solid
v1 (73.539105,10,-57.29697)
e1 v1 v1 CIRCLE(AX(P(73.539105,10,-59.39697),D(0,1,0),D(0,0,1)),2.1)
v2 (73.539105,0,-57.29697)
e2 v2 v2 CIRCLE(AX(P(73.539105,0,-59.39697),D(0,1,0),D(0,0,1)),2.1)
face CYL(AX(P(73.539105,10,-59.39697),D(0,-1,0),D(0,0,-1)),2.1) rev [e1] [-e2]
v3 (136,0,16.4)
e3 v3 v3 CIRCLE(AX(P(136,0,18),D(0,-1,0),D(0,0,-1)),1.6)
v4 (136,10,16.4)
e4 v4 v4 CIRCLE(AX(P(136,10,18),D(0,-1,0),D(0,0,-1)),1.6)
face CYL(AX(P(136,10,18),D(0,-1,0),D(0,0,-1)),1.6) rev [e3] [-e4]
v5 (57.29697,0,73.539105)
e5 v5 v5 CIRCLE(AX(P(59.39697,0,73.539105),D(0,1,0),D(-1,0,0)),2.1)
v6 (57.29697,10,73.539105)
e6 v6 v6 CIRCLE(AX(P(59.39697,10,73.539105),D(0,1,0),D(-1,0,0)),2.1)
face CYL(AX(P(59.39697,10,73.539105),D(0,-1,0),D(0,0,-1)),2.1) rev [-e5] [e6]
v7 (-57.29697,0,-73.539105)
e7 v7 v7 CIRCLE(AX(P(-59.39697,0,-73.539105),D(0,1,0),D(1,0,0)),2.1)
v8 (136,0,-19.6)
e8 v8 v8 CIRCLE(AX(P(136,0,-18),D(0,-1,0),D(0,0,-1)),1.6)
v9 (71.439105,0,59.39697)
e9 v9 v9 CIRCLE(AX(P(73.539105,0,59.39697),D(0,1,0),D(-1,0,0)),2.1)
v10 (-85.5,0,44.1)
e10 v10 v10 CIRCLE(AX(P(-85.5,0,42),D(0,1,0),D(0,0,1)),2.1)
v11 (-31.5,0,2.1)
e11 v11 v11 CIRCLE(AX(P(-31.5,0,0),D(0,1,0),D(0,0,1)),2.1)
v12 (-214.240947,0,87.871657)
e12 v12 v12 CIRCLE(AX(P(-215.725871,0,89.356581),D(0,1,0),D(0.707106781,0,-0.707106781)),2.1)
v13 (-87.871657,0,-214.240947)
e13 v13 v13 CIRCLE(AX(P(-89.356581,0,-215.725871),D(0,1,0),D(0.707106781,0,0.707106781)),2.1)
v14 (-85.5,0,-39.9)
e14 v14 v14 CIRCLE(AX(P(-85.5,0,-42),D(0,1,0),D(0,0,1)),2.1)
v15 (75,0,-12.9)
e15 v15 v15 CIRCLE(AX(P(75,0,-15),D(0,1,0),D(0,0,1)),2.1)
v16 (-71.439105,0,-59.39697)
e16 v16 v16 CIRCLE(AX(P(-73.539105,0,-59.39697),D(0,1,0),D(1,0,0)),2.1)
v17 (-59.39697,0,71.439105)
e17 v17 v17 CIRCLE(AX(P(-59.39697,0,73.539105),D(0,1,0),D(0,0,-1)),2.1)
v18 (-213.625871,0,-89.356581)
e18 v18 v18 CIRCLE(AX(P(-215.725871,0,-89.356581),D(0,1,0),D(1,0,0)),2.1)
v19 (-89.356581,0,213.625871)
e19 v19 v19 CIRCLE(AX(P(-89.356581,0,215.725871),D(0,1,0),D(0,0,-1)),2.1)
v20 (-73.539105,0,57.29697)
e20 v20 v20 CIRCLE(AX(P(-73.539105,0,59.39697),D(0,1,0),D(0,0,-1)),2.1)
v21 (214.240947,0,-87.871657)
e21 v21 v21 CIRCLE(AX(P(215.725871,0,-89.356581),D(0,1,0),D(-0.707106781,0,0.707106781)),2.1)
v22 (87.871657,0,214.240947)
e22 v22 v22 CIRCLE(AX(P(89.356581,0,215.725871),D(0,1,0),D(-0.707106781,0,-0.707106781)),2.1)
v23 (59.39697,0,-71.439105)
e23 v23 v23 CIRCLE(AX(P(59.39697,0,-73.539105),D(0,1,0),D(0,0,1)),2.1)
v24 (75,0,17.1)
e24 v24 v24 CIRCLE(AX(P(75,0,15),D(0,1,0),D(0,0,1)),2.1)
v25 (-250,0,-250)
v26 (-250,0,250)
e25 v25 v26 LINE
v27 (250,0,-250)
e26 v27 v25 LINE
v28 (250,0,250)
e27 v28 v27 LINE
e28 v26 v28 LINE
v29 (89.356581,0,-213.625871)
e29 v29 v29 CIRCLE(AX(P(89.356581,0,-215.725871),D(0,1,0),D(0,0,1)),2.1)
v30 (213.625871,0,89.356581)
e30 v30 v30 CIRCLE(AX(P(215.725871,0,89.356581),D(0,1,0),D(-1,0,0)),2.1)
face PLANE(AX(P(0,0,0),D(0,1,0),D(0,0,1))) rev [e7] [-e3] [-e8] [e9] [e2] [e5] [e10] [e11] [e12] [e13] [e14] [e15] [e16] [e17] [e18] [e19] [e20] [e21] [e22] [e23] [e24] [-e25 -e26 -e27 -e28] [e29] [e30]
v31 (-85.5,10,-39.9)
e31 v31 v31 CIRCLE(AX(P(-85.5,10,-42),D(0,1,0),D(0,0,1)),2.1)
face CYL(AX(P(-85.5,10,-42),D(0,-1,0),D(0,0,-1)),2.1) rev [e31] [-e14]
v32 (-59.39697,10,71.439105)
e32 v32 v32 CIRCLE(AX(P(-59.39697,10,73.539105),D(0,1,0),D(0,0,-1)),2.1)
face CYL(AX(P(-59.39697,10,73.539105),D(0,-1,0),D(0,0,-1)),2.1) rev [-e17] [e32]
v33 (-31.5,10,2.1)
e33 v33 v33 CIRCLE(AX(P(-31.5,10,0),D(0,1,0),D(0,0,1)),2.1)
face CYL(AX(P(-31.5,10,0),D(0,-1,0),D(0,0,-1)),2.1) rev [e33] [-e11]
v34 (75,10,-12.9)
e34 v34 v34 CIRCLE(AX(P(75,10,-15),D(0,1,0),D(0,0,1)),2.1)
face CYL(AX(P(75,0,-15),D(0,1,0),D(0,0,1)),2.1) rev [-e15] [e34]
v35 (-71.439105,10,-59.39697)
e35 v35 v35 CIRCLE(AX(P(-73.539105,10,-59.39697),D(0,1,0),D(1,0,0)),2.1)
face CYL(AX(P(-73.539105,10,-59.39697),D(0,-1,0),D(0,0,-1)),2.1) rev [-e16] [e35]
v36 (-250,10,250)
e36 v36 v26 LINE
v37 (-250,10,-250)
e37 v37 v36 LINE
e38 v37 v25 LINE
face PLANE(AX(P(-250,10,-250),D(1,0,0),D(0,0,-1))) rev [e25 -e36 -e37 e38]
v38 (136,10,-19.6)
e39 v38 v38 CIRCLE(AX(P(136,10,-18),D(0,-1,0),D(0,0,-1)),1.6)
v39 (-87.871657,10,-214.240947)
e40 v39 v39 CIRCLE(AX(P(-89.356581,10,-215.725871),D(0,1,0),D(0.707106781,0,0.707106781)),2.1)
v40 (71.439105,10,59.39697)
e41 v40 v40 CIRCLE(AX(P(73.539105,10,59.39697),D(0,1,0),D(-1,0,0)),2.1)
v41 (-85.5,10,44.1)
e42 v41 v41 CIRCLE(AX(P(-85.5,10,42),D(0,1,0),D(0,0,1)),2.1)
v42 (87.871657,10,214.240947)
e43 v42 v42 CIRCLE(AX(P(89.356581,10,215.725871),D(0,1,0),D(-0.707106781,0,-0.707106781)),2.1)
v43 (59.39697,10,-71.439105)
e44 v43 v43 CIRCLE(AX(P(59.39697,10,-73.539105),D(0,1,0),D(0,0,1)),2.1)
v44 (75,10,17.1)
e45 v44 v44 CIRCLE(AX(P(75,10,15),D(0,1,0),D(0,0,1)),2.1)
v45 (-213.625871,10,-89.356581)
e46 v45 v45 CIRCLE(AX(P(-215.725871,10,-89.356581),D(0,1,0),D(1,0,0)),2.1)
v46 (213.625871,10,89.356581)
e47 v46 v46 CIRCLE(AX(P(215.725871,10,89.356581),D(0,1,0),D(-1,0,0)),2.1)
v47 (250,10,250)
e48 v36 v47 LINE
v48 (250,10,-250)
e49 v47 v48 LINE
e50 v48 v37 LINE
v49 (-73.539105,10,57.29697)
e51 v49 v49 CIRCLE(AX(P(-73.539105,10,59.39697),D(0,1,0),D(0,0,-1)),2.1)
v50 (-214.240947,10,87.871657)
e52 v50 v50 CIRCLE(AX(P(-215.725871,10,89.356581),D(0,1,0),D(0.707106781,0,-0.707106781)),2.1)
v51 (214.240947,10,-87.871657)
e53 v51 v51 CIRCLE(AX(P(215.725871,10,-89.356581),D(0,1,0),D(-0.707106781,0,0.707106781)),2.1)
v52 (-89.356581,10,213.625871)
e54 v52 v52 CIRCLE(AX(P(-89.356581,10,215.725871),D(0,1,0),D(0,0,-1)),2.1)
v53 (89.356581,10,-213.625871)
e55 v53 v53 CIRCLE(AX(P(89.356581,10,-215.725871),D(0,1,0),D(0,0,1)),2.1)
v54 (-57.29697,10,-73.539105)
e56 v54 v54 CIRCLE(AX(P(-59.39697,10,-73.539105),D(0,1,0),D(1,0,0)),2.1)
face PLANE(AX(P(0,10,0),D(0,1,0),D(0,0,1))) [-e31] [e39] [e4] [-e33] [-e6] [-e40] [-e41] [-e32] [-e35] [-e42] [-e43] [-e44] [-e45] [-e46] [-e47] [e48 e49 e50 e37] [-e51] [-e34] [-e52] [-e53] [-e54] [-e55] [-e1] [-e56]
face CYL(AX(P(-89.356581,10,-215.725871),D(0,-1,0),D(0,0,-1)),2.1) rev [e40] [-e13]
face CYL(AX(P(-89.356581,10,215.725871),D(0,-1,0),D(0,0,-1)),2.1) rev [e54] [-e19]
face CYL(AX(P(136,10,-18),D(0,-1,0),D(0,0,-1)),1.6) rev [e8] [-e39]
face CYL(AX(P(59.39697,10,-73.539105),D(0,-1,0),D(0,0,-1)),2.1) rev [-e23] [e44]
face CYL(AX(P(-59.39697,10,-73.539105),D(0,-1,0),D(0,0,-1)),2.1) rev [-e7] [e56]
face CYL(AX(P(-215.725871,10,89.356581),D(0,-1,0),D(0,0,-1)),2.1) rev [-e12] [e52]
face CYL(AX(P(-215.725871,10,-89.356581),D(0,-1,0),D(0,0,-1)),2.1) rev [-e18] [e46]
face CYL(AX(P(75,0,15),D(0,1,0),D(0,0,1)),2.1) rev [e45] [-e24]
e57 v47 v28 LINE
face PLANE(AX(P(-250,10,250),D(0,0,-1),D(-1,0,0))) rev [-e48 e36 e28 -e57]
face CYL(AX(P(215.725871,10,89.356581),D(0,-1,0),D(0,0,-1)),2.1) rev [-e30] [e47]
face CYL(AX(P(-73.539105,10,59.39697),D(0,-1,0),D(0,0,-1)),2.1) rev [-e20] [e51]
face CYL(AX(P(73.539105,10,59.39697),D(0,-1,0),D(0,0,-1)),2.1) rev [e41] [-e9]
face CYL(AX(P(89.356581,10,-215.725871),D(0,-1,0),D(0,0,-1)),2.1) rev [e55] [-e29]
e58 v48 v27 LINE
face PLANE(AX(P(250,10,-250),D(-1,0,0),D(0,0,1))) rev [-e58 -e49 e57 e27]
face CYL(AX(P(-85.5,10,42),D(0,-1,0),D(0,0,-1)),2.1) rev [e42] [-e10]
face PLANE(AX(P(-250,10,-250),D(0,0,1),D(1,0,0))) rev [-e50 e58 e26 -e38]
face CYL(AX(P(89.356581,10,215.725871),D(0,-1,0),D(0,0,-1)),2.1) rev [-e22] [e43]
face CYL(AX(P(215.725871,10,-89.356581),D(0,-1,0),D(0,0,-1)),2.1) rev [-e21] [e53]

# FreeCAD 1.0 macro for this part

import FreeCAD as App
import Part
import Sketcher

V = App.Vector

doc = App.newDocument("Part")
body = doc.addObject("PartDesign::Body", "Body")

# Sketch on XZ plane
sketch1 = body.newObject("Sketcher::SketchObject", "Sketch")
sketch1.AttachmentSupport = (doc.getObject("XZ_Plane"), [""])
sketch1.MapMode = "FlatFace"
sketch1.addGeometry([
    Part.LineSegment(V(-250, -250, 0), V(-250, 250, 0)),
    Part.LineSegment(V(-250, 250, 0), V(250, 250, 0)),
    Part.LineSegment(V(250, 250, 0), V(250, -250, 0)),
    Part.LineSegment(V(250, -250, 0), V(-250, -250, 0)),
], False)
sketch1.addConstraint([
    Sketcher.Constraint("Coincident", 0, 2, 1, 1),
    Sketcher.Constraint("Coincident", 1, 2, 2, 1),
    Sketcher.Constraint("Coincident", 2, 2, 3, 1),
    Sketcher.Constraint("Coincident", 3, 2, 0, 1),
    Sketcher.Constraint("Vertical", 0),
    Sketcher.Constraint("Horizontal", 1),
    Sketcher.Constraint("Vertical", 2),
    Sketcher.Constraint("Horizontal", 3),
    Sketcher.Constraint("Symmetric", 0, 2, 2, 2, -1, 1),
    Sketcher.Constraint("Equal", 3, 0),
    Sketcher.Constraint("DistanceX", 1, 1, 1, 2, 500.0),
])
pad1 = body.newObject("PartDesign::Pad", "Pad")
pad1.Profile = sketch1
pad1.Length = 10
pad1.Reversed = True

# Sketch on XZ plane
sketch2 = body.newObject("Sketcher::SketchObject", "Sketch001")
sketch2.AttachmentSupport = (doc.getObject("XZ_Plane"), [""])
sketch2.MapMode = "FlatFace"
sketch2.addGeometry(Part.Circle(V(89.4, -215.7, 0), V(0, 0, 1), 2.1), False)
sketch2.addConstraint([
    Sketcher.Constraint("Diameter", 0, 4.2),
    Sketcher.Constraint("DistanceX", -1, 1, 0, 3, 89.356581),
    Sketcher.Constraint("DistanceY", 0, 3, -1, 1, 215.725871),
])
pocket1 = body.newObject("PartDesign::Pocket", "Pocket")
pocket1.Profile = sketch2
pocket1.Type = "ThroughAll"
doc.recompute()

polarpattern = body.newObject("PartDesign::PolarPattern", "PolarPattern")
polarpattern.Originals = [pocket1]
polarpattern.Axis = (doc.getObject("Y_Axis"), [""])
polarpattern.Angle = 360
polarpattern.Occurrences = 8
body.Tip = polarpattern

# Sketch on XZ plane
sketch3 = body.newObject("Sketcher::SketchObject", "Sketch002")
sketch3.AttachmentSupport = (doc.getObject("XZ_Plane"), [""])
sketch3.MapMode = "FlatFace"
sketch3.addGeometry([
    Part.Circle(V(59.4, -73.5, 0), V(0, 0, 1), 2.1),
    Part.Circle(V(73.5, -59.4, 0), V(0, 0, 1), 2.1),
], False)
sketch3.addConstraint([
    Sketcher.Constraint("Equal", 0, 1),
    Sketcher.Constraint("Diameter", 0, 4.2),
    Sketcher.Constraint("DistanceX", -1, 1, 0, 3, 59.39697),
    Sketcher.Constraint("DistanceY", 1, 3, -1, 1, 59.39697),
    Sketcher.Constraint("DistanceY", 0, 3, -1, 1, 73.539105),
    Sketcher.Constraint("DistanceX", -1, 1, 1, 3, 73.539105),
])
pocket2 = body.newObject("PartDesign::Pocket", "Pocket001")
pocket2.Profile = sketch3
pocket2.Type = "ThroughAll"
doc.recompute()

polarpattern2 = body.newObject("PartDesign::PolarPattern", "PolarPattern001")
polarpattern2.Originals = [pocket2]
polarpattern2.Axis = (doc.getObject("Y_Axis"), [""])
polarpattern2.Angle = 360
polarpattern2.Occurrences = 4
body.Tip = polarpattern2

# Sketch on XZ plane
sketch4 = body.newObject("Sketcher::SketchObject", "Sketch003")
sketch4.AttachmentSupport = (doc.getObject("XZ_Plane"), [""])
sketch4.MapMode = "FlatFace"
sketch4.addGeometry([
    Part.Circle(V(-85.5, -42, 0), V(0, 0, 1), 2.1),
    Part.Circle(V(-85.5, 42, 0), V(0, 0, 1), 2.1),
    Part.Circle(V(-31.5, 0, 0), V(0, 0, 1), 2.1),
], False)
sketch4.addConstraint([
    Sketcher.Constraint("Equal", 0, 1),
    Sketcher.Constraint("Equal", 1, 2),
    Sketcher.Constraint("Symmetric", 0, 3, 1, 3, -1),
    Sketcher.Constraint("PointOnObject", 2, 3, -1),
    Sketcher.Constraint("Diameter", 0, 4.2),
    Sketcher.Constraint("DistanceY", 0, 3, -1, 1, 42.0),
    Sketcher.Constraint("DistanceX", 0, 3, 2, 3, 54.0),
    Sketcher.Constraint("DistanceX", 0, 3, -1, 1, 85.5),
])
pocket3 = body.newObject("PartDesign::Pocket", "Pocket002")
pocket3.Profile = sketch4
pocket3.Type = "ThroughAll"

# Sketch on XZ plane
sketch5 = body.newObject("Sketcher::SketchObject", "Sketch004")
sketch5.AttachmentSupport = (doc.getObject("XZ_Plane"), [""])
sketch5.MapMode = "FlatFace"
sketch5.addGeometry([
    Part.Circle(V(136, -18, 0), V(0, 0, 1), 1.6),
    Part.Circle(V(136, 18, 0), V(0, 0, 1), 1.6),
], False)
sketch5.addConstraint([
    Sketcher.Constraint("Equal", 0, 1),
    Sketcher.Constraint("Symmetric", 0, 3, 1, 3, -1),
    Sketcher.Constraint("Diameter", 0, 3.2),
    Sketcher.Constraint("DistanceX", -1, 1, 0, 3, 136.0),
    Sketcher.Constraint("DistanceY", 0, 3, -1, 1, 18.0),
])
pocket4 = body.newObject("PartDesign::Pocket", "Pocket003")
pocket4.Profile = sketch5
pocket4.Type = "ThroughAll"

# Sketch on XZ plane
sketch6 = body.newObject("Sketcher::SketchObject", "Sketch005")
sketch6.AttachmentSupport = (doc.getObject("XZ_Plane"), [""])
sketch6.MapMode = "FlatFace"
sketch6.AttachmentOffset = App.Placement(V(0, 0, -10), App.Rotation())
sketch6.addGeometry([
    Part.Circle(V(75, -15, 0), V(0, 0, 1), 2.1),
    Part.Circle(V(75, 15, 0), V(0, 0, 1), 2.1),
], False)
sketch6.addConstraint([
    Sketcher.Constraint("Equal", 0, 1),
    Sketcher.Constraint("Symmetric", 0, 3, 1, 3, -1),
    Sketcher.Constraint("Diameter", 0, 4.2),
    Sketcher.Constraint("DistanceX", -1, 1, 0, 3, 75.0),
    Sketcher.Constraint("DistanceY", 0, 3, -1, 1, 15.0),
])
pocket5 = body.newObject("PartDesign::Pocket", "Pocket004")
pocket5.Profile = sketch6
pocket5.Type = "ThroughAll"
pocket5.Reversed = True

doc.recompute()
